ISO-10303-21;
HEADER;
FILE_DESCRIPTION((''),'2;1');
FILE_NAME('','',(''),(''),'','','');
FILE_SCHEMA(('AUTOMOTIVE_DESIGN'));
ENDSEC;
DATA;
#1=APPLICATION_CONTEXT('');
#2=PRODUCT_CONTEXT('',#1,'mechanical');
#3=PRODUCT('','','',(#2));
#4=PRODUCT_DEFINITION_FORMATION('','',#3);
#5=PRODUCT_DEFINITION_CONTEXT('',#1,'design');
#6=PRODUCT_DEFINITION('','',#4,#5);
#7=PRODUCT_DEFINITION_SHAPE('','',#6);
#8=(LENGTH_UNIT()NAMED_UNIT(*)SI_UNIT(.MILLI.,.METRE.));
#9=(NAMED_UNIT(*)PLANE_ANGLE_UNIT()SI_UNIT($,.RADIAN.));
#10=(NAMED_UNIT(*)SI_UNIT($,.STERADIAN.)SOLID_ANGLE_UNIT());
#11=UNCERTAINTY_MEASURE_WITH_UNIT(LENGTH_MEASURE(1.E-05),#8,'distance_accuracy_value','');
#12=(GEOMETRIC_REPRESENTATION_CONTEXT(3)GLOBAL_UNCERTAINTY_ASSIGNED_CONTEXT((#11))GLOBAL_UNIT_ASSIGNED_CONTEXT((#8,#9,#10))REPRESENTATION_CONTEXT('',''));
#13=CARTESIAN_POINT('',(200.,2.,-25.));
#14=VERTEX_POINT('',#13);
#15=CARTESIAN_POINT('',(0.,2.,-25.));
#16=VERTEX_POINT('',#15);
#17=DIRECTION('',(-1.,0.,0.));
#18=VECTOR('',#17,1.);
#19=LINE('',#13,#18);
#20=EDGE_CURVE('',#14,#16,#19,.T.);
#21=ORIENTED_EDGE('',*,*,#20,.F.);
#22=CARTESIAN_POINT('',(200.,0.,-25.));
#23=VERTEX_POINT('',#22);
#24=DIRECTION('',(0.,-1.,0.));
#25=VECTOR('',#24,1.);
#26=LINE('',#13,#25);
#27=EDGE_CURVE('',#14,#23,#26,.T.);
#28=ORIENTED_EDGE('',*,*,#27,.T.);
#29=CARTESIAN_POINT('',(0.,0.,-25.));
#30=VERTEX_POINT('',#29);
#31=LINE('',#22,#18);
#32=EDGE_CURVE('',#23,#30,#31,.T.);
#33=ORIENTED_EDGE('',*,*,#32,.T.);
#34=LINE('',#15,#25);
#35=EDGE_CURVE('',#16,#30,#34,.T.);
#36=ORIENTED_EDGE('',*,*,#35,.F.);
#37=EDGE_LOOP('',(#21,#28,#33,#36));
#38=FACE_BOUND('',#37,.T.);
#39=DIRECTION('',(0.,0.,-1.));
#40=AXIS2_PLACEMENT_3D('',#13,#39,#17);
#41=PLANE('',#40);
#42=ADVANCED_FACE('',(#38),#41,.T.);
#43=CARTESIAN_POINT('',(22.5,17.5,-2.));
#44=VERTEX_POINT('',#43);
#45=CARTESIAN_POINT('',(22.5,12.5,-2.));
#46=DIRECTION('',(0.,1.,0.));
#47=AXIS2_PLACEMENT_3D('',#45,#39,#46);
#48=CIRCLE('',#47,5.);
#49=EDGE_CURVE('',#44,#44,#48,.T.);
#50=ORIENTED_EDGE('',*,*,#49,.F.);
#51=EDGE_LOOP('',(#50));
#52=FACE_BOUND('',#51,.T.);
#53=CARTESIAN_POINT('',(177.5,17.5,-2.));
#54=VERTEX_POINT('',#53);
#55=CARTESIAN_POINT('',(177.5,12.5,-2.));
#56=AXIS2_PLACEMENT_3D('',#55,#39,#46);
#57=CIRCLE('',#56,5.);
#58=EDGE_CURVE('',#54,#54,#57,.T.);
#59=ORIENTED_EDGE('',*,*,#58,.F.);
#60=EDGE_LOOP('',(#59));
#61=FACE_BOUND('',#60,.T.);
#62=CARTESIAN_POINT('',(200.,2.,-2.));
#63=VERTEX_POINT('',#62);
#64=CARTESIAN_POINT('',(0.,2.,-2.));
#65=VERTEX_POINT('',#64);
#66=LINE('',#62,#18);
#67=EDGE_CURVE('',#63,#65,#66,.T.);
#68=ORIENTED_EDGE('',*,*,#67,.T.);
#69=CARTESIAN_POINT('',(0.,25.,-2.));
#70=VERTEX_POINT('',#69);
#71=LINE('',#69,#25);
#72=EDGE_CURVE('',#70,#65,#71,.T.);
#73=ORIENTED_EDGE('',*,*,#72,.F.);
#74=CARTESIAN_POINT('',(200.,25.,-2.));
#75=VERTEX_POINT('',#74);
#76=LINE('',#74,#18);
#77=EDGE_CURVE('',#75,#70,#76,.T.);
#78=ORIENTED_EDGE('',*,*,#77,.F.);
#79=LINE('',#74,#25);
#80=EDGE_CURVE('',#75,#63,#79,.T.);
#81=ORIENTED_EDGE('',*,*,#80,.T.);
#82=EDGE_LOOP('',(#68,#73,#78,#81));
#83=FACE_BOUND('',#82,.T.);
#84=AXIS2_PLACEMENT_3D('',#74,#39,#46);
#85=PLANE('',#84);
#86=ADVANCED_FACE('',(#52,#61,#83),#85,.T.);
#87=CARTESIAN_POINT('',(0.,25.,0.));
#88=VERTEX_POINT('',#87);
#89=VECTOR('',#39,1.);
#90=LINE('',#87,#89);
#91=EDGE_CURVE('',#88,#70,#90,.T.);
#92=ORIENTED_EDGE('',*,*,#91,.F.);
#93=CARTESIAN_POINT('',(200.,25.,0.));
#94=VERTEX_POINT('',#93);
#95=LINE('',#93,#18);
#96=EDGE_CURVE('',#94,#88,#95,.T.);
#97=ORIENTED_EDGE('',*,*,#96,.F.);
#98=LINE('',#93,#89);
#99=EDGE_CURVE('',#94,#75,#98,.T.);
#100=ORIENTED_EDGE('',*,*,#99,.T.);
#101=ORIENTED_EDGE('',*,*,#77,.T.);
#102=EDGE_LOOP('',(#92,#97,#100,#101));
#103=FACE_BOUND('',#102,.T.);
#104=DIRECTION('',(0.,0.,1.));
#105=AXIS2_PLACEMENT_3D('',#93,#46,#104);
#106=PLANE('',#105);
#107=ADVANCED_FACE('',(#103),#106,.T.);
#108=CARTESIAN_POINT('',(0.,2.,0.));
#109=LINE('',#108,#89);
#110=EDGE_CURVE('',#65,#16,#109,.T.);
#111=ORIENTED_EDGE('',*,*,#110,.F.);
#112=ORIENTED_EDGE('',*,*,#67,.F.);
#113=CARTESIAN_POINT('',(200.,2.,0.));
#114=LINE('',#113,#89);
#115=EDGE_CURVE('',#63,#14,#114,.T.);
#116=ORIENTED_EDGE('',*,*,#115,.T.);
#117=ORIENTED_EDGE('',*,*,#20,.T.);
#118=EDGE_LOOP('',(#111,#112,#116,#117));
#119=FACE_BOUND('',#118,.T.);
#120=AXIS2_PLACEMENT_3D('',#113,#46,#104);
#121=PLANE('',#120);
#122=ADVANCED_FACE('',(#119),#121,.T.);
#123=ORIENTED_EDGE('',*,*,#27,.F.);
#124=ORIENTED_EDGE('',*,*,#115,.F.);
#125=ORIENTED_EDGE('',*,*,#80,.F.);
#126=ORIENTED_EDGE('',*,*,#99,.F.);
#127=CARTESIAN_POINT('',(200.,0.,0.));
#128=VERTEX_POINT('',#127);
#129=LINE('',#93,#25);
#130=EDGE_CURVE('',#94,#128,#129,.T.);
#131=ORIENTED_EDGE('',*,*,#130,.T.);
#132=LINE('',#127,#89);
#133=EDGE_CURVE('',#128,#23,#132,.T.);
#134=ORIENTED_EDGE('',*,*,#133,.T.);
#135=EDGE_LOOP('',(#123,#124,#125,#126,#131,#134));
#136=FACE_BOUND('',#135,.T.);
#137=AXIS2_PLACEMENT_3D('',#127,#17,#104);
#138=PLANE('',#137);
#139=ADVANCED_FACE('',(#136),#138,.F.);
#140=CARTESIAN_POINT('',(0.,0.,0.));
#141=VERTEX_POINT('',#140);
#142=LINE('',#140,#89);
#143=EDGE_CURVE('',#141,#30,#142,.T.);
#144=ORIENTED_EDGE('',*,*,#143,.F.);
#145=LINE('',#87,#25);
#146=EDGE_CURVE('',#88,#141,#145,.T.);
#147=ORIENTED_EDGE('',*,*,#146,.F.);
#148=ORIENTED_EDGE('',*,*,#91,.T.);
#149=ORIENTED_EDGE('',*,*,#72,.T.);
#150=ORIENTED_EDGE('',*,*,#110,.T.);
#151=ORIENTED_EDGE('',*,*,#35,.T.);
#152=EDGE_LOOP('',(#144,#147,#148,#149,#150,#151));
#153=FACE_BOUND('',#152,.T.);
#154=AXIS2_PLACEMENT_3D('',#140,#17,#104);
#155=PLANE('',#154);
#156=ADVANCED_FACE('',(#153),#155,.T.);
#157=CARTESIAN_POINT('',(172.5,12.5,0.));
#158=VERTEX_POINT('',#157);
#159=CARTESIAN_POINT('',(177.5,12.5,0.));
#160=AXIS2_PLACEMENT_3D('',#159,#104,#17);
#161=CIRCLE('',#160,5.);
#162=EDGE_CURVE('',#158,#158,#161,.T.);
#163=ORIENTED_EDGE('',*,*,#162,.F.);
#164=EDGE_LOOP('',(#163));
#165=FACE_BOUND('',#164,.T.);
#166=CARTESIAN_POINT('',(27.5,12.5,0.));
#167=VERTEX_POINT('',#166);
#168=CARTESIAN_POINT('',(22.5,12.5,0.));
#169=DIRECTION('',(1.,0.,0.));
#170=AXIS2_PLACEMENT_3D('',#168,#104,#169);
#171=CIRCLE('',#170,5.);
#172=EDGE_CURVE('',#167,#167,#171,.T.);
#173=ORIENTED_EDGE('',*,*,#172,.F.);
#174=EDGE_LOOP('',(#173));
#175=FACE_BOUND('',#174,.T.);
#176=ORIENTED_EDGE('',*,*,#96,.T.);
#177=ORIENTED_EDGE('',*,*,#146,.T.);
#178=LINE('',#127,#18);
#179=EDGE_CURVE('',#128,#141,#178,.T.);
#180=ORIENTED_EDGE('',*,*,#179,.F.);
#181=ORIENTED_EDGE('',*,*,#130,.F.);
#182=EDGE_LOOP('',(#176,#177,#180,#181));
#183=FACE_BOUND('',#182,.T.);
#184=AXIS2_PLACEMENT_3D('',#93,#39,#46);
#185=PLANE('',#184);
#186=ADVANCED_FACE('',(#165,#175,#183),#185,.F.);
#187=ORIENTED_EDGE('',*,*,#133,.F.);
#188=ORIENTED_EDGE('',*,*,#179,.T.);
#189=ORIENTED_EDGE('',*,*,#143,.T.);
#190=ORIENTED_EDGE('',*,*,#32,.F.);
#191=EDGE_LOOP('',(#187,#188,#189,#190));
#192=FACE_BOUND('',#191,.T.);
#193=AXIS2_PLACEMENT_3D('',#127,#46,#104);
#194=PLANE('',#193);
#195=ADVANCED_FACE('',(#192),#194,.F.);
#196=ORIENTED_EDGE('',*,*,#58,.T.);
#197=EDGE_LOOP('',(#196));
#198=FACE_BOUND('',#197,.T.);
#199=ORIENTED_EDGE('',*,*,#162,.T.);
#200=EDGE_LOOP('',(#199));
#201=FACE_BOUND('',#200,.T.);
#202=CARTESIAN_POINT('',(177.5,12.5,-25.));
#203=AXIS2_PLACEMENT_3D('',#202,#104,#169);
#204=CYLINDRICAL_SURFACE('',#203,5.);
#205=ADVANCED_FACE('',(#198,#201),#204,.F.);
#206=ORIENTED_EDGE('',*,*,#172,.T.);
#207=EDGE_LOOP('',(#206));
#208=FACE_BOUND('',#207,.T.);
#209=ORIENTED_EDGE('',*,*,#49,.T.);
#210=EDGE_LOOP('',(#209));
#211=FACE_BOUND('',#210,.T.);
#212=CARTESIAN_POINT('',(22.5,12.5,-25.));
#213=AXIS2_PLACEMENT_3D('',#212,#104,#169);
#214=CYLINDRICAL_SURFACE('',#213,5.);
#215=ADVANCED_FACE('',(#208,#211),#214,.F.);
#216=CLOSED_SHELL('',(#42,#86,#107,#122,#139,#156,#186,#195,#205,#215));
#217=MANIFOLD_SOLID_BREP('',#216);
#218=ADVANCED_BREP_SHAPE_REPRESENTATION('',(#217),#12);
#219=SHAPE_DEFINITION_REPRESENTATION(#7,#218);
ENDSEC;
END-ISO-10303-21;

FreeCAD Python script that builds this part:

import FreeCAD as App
import Part
import Sketcher
from FreeCAD import Vector


def add_polygon(sketch, points):
    """Adds a closed chain of lines whose ends are joined by coincident constraints."""
    first, n = sketch.GeometryCount, len(points)
    for a, b in zip(points, points[1:] + points[:1]):
        sketch.addGeometry(Part.LineSegment(App.Vector(*a, 0), App.Vector(*b, 0)), False)
    for i in range(n):
        sketch.addConstraint(Sketcher.Constraint("Coincident", first + i, 2, first + (i + 1) % n, 1))

doc = App.newDocument("Part")
body = doc.addObject("PartDesign::Body", "Body")

# Sketch on YZ plane
sketch1 = body.newObject("Sketcher::SketchObject", "Sketch")
sketch1.AttachmentSupport = (doc.getObject("YZ_Plane"), [""])
sketch1.MapMode = "FlatFace"
add_polygon(sketch1, [(25, 0), (0, 0), (0, -25), (2, -25), (2, -2), (25, -2)])  # lines 0-5
sketch1.addConstraint([
    Sketcher.Constraint("Horizontal", 0),
    Sketcher.Constraint("Vertical", 1),
    Sketcher.Constraint("Horizontal", 2),
    Sketcher.Constraint("Vertical", 3),
    Sketcher.Constraint("Horizontal", 4),
    Sketcher.Constraint("Vertical", 5),
    Sketcher.Constraint("Coincident", 0, 2, -1, 1),
    Sketcher.Constraint("Equal", 0, 1),
    Sketcher.Constraint("Equal", 4, 3),
    Sketcher.Constraint("DistanceX", 0, 2, 0, 1, 25.0),
    Sketcher.Constraint("DistanceX", 2, 1, 2, 2, 2.0),
])
pad1 = body.newObject("PartDesign::Pad", "Pad")
pad1.Profile = sketch1
pad1.Length = 200

# Sketch on XY plane
sketch2 = body.newObject("Sketcher::SketchObject", "Sketch001")
sketch2.AttachmentSupport = (doc.getObject("XY_Plane"), [""])
sketch2.MapMode = "FlatFace"
sketch2.addGeometry([
    Part.Circle(Vector(22.5, 12.5, 0), Vector(0, 0, 1), 5),
    Part.Circle(Vector(177.5, 12.5, 0), Vector(0, 0, 1), 5),
], False)
sketch2.addConstraint([
    Sketcher.Constraint("Equal", 0, 1),
    Sketcher.Constraint("Horizontal", 0, 3, 1, 3),
    Sketcher.Constraint("Diameter", 0, 10.0),
    Sketcher.Constraint("DistanceX", 0, 3, 1, 3, 155.0),
    Sketcher.Constraint("DistanceX", -1, 1, 0, 3, 22.5),
    Sketcher.Constraint("DistanceY", -1, 1, 0, 3, 12.5),
])
pocket1 = body.newObject("PartDesign::Pocket", "Pocket")
pocket1.Profile = sketch2
pocket1.Type = "ThroughAll"

doc.recompute()
